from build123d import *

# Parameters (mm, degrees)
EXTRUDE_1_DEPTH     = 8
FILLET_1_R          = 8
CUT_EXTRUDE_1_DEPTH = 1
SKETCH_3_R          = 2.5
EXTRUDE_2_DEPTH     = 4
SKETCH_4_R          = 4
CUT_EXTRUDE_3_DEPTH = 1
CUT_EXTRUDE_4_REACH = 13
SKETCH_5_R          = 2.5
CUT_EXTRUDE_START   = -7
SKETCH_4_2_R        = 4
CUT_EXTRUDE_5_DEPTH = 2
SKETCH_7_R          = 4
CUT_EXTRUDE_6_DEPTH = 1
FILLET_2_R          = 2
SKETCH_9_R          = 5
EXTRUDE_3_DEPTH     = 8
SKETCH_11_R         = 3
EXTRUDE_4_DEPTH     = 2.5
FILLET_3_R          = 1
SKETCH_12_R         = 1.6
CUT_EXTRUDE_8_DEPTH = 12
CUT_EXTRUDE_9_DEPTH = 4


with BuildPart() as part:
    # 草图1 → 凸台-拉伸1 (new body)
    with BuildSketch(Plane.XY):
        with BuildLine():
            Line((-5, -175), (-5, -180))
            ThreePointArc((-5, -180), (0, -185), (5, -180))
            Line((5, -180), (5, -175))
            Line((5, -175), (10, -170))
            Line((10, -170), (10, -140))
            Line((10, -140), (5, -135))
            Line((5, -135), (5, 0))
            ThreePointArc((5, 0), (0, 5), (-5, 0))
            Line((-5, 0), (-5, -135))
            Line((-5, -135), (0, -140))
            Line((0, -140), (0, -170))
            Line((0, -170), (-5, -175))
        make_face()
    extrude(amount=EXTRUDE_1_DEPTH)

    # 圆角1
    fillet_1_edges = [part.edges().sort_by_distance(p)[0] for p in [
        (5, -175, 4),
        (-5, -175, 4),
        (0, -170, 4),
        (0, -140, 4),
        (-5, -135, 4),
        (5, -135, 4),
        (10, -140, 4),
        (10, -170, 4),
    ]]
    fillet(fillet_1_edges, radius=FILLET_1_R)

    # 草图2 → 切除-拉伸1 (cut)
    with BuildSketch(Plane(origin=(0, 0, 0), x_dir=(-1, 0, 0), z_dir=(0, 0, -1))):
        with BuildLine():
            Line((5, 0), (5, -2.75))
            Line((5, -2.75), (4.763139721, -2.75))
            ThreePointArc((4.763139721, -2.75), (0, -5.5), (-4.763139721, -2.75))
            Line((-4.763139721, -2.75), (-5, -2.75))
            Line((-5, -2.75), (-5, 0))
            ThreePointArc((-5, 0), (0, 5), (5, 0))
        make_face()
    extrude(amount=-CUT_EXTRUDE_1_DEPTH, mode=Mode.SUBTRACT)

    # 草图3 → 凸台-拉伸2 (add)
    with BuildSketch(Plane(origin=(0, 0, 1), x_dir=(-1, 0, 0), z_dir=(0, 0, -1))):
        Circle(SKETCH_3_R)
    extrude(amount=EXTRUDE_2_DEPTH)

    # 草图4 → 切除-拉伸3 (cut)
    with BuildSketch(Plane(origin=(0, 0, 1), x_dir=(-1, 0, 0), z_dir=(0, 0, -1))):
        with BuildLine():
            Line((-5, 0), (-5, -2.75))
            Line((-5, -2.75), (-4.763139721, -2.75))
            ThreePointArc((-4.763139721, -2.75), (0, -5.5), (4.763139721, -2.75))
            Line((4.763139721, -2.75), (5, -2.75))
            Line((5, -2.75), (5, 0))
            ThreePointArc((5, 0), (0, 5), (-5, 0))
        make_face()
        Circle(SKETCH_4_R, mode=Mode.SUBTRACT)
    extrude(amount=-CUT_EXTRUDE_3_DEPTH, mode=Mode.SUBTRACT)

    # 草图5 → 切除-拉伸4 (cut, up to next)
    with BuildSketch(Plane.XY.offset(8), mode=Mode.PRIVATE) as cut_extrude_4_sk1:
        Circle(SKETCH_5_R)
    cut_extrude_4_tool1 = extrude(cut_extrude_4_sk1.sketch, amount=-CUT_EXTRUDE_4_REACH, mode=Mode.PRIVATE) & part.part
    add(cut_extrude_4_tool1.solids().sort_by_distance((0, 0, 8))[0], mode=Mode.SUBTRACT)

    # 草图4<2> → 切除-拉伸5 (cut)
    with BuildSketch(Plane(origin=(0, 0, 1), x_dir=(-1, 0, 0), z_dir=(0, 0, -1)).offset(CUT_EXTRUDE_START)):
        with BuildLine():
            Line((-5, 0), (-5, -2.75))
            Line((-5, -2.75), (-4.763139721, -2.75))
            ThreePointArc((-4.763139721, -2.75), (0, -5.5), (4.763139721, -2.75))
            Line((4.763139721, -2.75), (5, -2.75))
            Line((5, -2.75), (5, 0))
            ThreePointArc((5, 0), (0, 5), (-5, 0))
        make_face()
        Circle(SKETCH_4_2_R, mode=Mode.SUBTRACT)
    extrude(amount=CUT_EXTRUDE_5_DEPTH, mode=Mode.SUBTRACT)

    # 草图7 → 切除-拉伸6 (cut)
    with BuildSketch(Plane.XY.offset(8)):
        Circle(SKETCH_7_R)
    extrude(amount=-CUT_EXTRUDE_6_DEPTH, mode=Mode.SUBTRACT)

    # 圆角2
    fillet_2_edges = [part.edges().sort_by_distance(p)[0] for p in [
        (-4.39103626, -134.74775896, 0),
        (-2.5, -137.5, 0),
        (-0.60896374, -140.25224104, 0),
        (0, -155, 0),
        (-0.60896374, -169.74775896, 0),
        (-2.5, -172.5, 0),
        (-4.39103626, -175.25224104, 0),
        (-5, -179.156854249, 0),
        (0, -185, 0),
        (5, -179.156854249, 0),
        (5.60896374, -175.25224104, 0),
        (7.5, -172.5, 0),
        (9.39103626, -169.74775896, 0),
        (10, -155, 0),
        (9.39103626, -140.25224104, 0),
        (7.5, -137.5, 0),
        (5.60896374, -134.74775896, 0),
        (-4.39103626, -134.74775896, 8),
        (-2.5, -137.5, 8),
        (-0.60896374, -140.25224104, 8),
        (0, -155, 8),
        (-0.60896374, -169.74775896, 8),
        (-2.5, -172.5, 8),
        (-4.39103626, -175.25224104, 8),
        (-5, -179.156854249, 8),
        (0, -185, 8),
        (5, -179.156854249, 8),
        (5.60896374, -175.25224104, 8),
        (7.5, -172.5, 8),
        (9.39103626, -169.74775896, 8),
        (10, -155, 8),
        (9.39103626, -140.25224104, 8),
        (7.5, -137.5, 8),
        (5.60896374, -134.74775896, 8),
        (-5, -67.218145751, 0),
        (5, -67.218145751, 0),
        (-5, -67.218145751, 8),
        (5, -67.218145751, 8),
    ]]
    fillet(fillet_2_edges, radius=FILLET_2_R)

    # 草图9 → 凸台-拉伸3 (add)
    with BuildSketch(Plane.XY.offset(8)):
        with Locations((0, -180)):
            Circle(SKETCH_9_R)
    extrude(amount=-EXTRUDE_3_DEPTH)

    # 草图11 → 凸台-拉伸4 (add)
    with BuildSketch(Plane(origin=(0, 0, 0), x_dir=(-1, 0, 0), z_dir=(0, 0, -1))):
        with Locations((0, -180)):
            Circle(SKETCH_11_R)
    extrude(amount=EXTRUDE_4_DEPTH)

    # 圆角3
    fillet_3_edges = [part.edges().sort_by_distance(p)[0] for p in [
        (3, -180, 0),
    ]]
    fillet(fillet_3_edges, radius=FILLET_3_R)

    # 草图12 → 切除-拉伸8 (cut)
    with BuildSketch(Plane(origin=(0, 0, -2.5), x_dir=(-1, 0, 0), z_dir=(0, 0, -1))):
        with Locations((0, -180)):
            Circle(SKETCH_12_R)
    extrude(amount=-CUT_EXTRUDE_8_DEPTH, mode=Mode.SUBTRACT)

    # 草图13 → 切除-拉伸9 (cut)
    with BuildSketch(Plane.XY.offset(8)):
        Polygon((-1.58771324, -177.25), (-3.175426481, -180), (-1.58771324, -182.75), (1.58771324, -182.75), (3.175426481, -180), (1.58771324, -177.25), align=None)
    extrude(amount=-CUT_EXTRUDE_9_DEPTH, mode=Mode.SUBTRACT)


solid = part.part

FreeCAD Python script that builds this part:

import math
import FreeCAD as App
import Part
import Sketcher
from FreeCAD import Vector
Q = App.Units.Quantity


def edges_at(feature, points):
    """Names of the edges that pass closest to the given points."""
    edges = feature.Shape.Edges
    near = lambda p: min(range(len(edges)), key=lambda i: edges[i].distToShape(Part.Vertex(*p))[0])
    return sorted({f"Edge{near(p) + 1}" for p in points})


def add_polygon(sketch, points):
    """Adds a closed chain of lines whose ends are joined by coincident constraints."""
    first, n = sketch.GeometryCount, len(points)
    for a, b in zip(points, points[1:] + points[:1]):
        sketch.addGeometry(Part.LineSegment(App.Vector(*a, 0), App.Vector(*b, 0)), False)
    for i in range(n):
        sketch.addConstraint(Sketcher.Constraint("Coincident", first + i, 2, first + (i + 1) % n, 1))

doc = App.newDocument("Part")
body = doc.addObject("PartDesign::Body", "Body")

# Sketch on XY plane
sketch1 = body.newObject("Sketcher::SketchObject", "Sketch")
sketch1.AttachmentSupport = (doc.getObject("XY_Plane"), [""])
sketch1.MapMode = "FlatFace"
sketch1.addGeometry([
    Part.LineSegment(Vector(-5, -175, 0), Vector(-5, -180, 0)),  # 0
    Part.ArcOfCircle(Part.Circle(Vector(0, -180, 0), Vector(0, 0, 1), 5), math.radians(180), math.radians(360)),  # 1
    Part.LineSegment(Vector(5, -180, 0), Vector(5, -175, 0)),  # 2
    Part.LineSegment(Vector(5, -175, 0), Vector(10, -170, 0)),  # 3
    Part.LineSegment(Vector(10, -170, 0), Vector(10, -140, 0)),  # 4
    Part.LineSegment(Vector(10, -140, 0), Vector(5, -135, 0)),  # 5
    Part.LineSegment(Vector(5, -135, 0), Vector(5, 0, 0)),  # 6
    Part.ArcOfCircle(Part.Circle(Vector(0, 0, 0), Vector(0, 0, 1), 5), math.radians(0), math.radians(180)),  # 7
    Part.LineSegment(Vector(-5, 0, 0), Vector(-5, -135, 0)),  # 8
    Part.LineSegment(Vector(-5, -135, 0), Vector(0, -140, 0)),  # 9
    Part.LineSegment(Vector(0, -140, 0), Vector(0, -170, 0)),  # 10
    Part.LineSegment(Vector(0, -170, 0), Vector(-5, -175, 0)),  # 11
], False)
sketch1.addConstraint([
    Sketcher.Constraint("Tangent", 0, 2, 1, 1),
    Sketcher.Constraint("Tangent", 1, 2, 2, 1),
    Sketcher.Constraint("Coincident", 2, 2, 3, 1),
    Sketcher.Constraint("Coincident", 3, 2, 4, 1),
    Sketcher.Constraint("Coincident", 4, 2, 5, 1),
    Sketcher.Constraint("Coincident", 5, 2, 6, 1),
    Sketcher.Constraint("Tangent", 6, 2, 7, 1),
    Sketcher.Constraint("Tangent", 7, 2, 8, 1),
    Sketcher.Constraint("Coincident", 8, 2, 9, 1),
    Sketcher.Constraint("Coincident", 9, 2, 10, 1),
    Sketcher.Constraint("Coincident", 10, 2, 11, 1),
    Sketcher.Constraint("Coincident", 11, 2, 0, 1),
    Sketcher.Constraint("Vertical", 0),
    Sketcher.Constraint("Vertical", 2),
    Sketcher.Constraint("Vertical", 4),
    Sketcher.Constraint("Vertical", 6),
    Sketcher.Constraint("Vertical", 8),
    Sketcher.Constraint("Vertical", 10),
    Sketcher.Constraint("Coincident", 7, 3, -1, 1),
    Sketcher.Constraint("Equal", 1, 7),
    Sketcher.Constraint("Symmetric", 2, 2, 11, 2, -2),
    Sketcher.Constraint("PointOnObject", 9, 2, -2),
    Sketcher.Constraint("Perpendicular", 3, 5),
    Sketcher.Constraint("Parallel", 5, 9),
    Sketcher.Constraint("Perpendicular", 9, 11),
    Sketcher.Constraint("Horizontal", 5, 2, 8, 2),
    Sketcher.Constraint("Horizontal", 4, 2, 9, 2),
    Sketcher.Constraint("Equal", 3, 5),
    Sketcher.Constraint("Radius", 1, 5.0),
    Sketcher.Constraint("DistanceY", 0, 2, 0, 1, 5.0),
    Sketcher.Constraint("DistanceY", 4, 1, 4, 2, 30.0),
    Sketcher.Constraint("DistanceY", 6, 1, 6, 2, 135.0),
])
pad1 = body.newObject("PartDesign::Pad", "Pad")
pad1.Profile = sketch1
pad1.Length = 8
doc.recompute()

fillet = body.newObject("PartDesign::Fillet", "Fillet")
fillet.Base = (pad1, edges_at(pad1, [
    (5, -175, 4),
    (-5, -175, 4),
    (0, -170, 4),
    (0, -140, 4),
    (-5, -135, 4),
    (5, -135, 4),
    (10, -140, 4),
    (10, -170, 4),
]))
fillet.Radius = 8

# Sketch on XY plane
sketch2 = body.newObject("Sketcher::SketchObject", "Sketch001")
sketch2.AttachmentSupport = (doc.getObject("XY_Plane"), [""])
sketch2.MapMode = "FlatFace"
sketch2.addGeometry([
    Part.LineSegment(Vector(-5, -2.75, 0), Vector(-5, 0, 0)),  # 0
    Part.ArcOfCircle(Part.Circle(Vector(0, 0, 0), Vector(0, 0, 1), 5), math.radians(0), math.radians(180)),  # 1
    Part.LineSegment(Vector(5, 0, 0), Vector(5, -2.75, 0)),  # 2
    Part.LineSegment(Vector(5, -2.75, 0), Vector(4.76314, -2.75, 0)),  # 3
    Part.ArcOfCircle(Part.Circle(Vector(0, 0, 0), Vector(0, 0, 1), 5.5), math.radians(-150), math.radians(-30)),  # 4
    Part.LineSegment(Vector(-4.76314, -2.75, 0), Vector(-5, -2.75, 0)),  # 5
], False)
sketch2.addConstraint([
    Sketcher.Constraint("Tangent", 0, 2, 1, 2),
    Sketcher.Constraint("Tangent", 1, 1, 2, 1),
    Sketcher.Constraint("Coincident", 2, 2, 3, 1),
    Sketcher.Constraint("Coincident", 3, 2, 4, 2),
    Sketcher.Constraint("Coincident", 4, 1, 5, 1),
    Sketcher.Constraint("Coincident", 5, 2, 0, 1),
    Sketcher.Constraint("Vertical", 0),
    Sketcher.Constraint("Vertical", 2),
    Sketcher.Constraint("Horizontal", 3),
    Sketcher.Constraint("Horizontal", 5),
    Sketcher.Constraint("Coincident", 1, 3, -1, 1),
    Sketcher.Constraint("Coincident", 4, 3, -1, 1),
    Sketcher.Constraint("Horizontal", 3, 2, 4, 1),
    Sketcher.Constraint("Radius", 1, 5.0),
    Sketcher.Constraint("Radius", 4, 5.5),
    Sketcher.Constraint("DistanceY", 0, 1, 0, 2, 2.75),
])
pocket1 = body.newObject("PartDesign::Pocket", "Pocket")
pocket1.Profile = sketch2
pocket1.Length = 1
pocket1.Reversed = True

# Sketch on XY plane
sketch3 = body.newObject("Sketcher::SketchObject", "Sketch002")
sketch3.AttachmentSupport = (doc.getObject("XY_Plane"), [""])
sketch3.MapMode = "FlatFace"
sketch3.AttachmentOffset = App.Placement(Vector(0, 0, 1), App.Rotation())
sketch3.addGeometry(Part.Circle(Vector(0, 0, 0), Vector(0, 0, 1), 2.5), False)
sketch3.addConstraint([
    Sketcher.Constraint("Coincident", 0, 3, -1, 1),
    Sketcher.Constraint("Diameter", 0, 5.0),
])
pad2 = body.newObject("PartDesign::Pad", "Pad001")
pad2.Profile = sketch3
pad2.Length = 4
pad2.Reversed = True

# Sketch on XY plane
sketch4 = body.newObject("Sketcher::SketchObject", "Sketch003")
sketch4.AttachmentSupport = (doc.getObject("XY_Plane"), [""])
sketch4.MapMode = "FlatFace"
sketch4.AttachmentOffset = App.Placement(Vector(0, 0, 1), App.Rotation())
sketch4.addGeometry([
    Part.LineSegment(Vector(5, 0, 0), Vector(5, -2.75, 0)),  # 0
    Part.LineSegment(Vector(5, -2.75, 0), Vector(4.76314, -2.75, 0)),  # 1
    Part.ArcOfCircle(Part.Circle(Vector(0, 0, 0), Vector(0, 0, 1), 5.5), math.radians(-150), math.radians(-30)),  # 2
    Part.LineSegment(Vector(-4.76314, -2.75, 0), Vector(-5, -2.75, 0)),  # 3
    Part.LineSegment(Vector(-5, -2.75, 0), Vector(-5, 0, 0)),  # 4
    Part.ArcOfCircle(Part.Circle(Vector(0, 0, 0), Vector(0, 0, 1), 5), math.radians(0), math.radians(180)),  # 5
    Part.Circle(Vector(0, 0, 0), Vector(0, 0, 1), 4),  # 6
], False)
sketch4.addConstraint([
    Sketcher.Constraint("Coincident", 0, 2, 1, 1),
    Sketcher.Constraint("Coincident", 1, 2, 2, 2),
    Sketcher.Constraint("Coincident", 2, 1, 3, 1),
    Sketcher.Constraint("Coincident", 3, 2, 4, 1),
    Sketcher.Constraint("Tangent", 4, 2, 5, 2),
    Sketcher.Constraint("Tangent", 5, 1, 0, 1),
    Sketcher.Constraint("Vertical", 0),
    Sketcher.Constraint("Horizontal", 1),
    Sketcher.Constraint("Horizontal", 3),
    Sketcher.Constraint("Vertical", 4),
    Sketcher.Constraint("Coincident", 2, 3, -1, 1),
    Sketcher.Constraint("Coincident", 5, 3, -1, 1),
    Sketcher.Constraint("Coincident", 6, 3, -1, 1),
    Sketcher.Constraint("Horizontal", 1, 2, 2, 1),
    Sketcher.Constraint("Diameter", 6, 8.0),
    Sketcher.Constraint("Radius", 5, 5.0),
    Sketcher.Constraint("Radius", 2, 5.5),
    Sketcher.Constraint("DistanceY", 0, 2, 0, 1, 2.75),
])
pocket2 = body.newObject("PartDesign::Pocket", "Pocket001")
pocket2.Profile = sketch4
pocket2.Length = 1
pocket2.Reversed = True

# Sketch on XY plane
sketch5 = body.newObject("Sketcher::SketchObject", "Sketch004")
sketch5.AttachmentSupport = (doc.getObject("XY_Plane"), [""])
sketch5.MapMode = "FlatFace"
sketch5.AttachmentOffset = App.Placement(Vector(0, 0, 8), App.Rotation())
sketch5.addGeometry(Part.Circle(Vector(0, 0, 0), Vector(0, 0, 1), 2.5), False)
sketch5.addConstraint([
    Sketcher.Constraint("Coincident", 0, 3, -1, 1),
    Sketcher.Constraint("Diameter", 0, 5.0),
])
pocket3 = body.newObject("PartDesign::Pocket", "Pocket002")
pocket3.Profile = sketch5
pocket3.Type = "UpToFirst"

# Sketch on XY plane
sketch6 = body.newObject("Sketcher::SketchObject", "Sketch005")
sketch6.AttachmentSupport = (doc.getObject("XY_Plane"), [""])
sketch6.MapMode = "FlatFace"
sketch6.AttachmentOffset = App.Placement(Vector(0, 0, 8), App.Rotation())
sketch6.addGeometry([
    Part.LineSegment(Vector(5, 0, 0), Vector(5, -2.75, 0)),  # 0
    Part.LineSegment(Vector(5, -2.75, 0), Vector(4.76314, -2.75, 0)),  # 1
    Part.ArcOfCircle(Part.Circle(Vector(0, 0, 0), Vector(0, 0, 1), 5.5), math.radians(-150), math.radians(-30)),  # 2
    Part.LineSegment(Vector(-4.76314, -2.75, 0), Vector(-5, -2.75, 0)),  # 3
    Part.LineSegment(Vector(-5, -2.75, 0), Vector(-5, 0, 0)),  # 4
    Part.ArcOfCircle(Part.Circle(Vector(0, 0, 0), Vector(0, 0, 1), 5), math.radians(0), math.radians(180)),  # 5
    Part.Circle(Vector(0, 0, 0), Vector(0, 0, 1), 4),  # 6
], False)
sketch6.addConstraint([
    Sketcher.Constraint("Coincident", 0, 2, 1, 1),
    Sketcher.Constraint("Coincident", 1, 2, 2, 2),
    Sketcher.Constraint("Coincident", 2, 1, 3, 1),
    Sketcher.Constraint("Coincident", 3, 2, 4, 1),
    Sketcher.Constraint("Tangent", 4, 2, 5, 2),
    Sketcher.Constraint("Tangent", 5, 1, 0, 1),
    Sketcher.Constraint("Vertical", 0),
    Sketcher.Constraint("Horizontal", 1),
    Sketcher.Constraint("Horizontal", 3),
    Sketcher.Constraint("Vertical", 4),
    Sketcher.Constraint("Coincident", 2, 3, -1, 1),
    Sketcher.Constraint("Coincident", 5, 3, -1, 1),
    Sketcher.Constraint("Coincident", 6, 3, -1, 1),
    Sketcher.Constraint("Horizontal", 1, 2, 2, 1),
    Sketcher.Constraint("Diameter", 6, 8.0),
    Sketcher.Constraint("Radius", 5, 5.0),
    Sketcher.Constraint("Radius", 2, 5.5),
    Sketcher.Constraint("DistanceY", 0, 2, 0, 1, 2.75),
])
pocket4 = body.newObject("PartDesign::Pocket", "Pocket003")
pocket4.Profile = sketch6
pocket4.Length = 2

# Sketch on XY plane
sketch7 = body.newObject("Sketcher::SketchObject", "Sketch006")
sketch7.AttachmentSupport = (doc.getObject("XY_Plane"), [""])
sketch7.MapMode = "FlatFace"
sketch7.AttachmentOffset = App.Placement(Vector(0, 0, 8), App.Rotation())
sketch7.addGeometry(Part.Circle(Vector(0, 0, 0), Vector(0, 0, 1), 4), False)
sketch7.addConstraint([
    Sketcher.Constraint("Coincident", 0, 3, -1, 1),
    Sketcher.Constraint("Diameter", 0, 8.0),
])
pocket5 = body.newObject("PartDesign::Pocket", "Pocket004")
pocket5.Profile = sketch7
pocket5.Length = 1
doc.recompute()

fillet2 = body.newObject("PartDesign::Fillet", "Fillet001")
fillet2.Base = (pocket5, edges_at(pocket5, [
    (-4.391, -134.748, 0),
    (-2.5, -137.5, 0),
    (-0.609, -140.252, 0),
    (0, -155, 0),
    (-0.609, -169.748, 0),
    (-2.5, -172.5, 0),
    (-4.391, -175.252, 0),
    (-5, -179.157, 0),
    (0, -185, 0),
    (5, -179.157, 0),
    (5.609, -175.252, 0),
    (7.5, -172.5, 0),
    (9.391, -169.748, 0),
    (10, -155, 0),
    (9.391, -140.252, 0),
    (7.5, -137.5, 0),
    (5.609, -134.748, 0),
    (-4.391, -134.748, 8),
    (-2.5, -137.5, 8),
    (-0.609, -140.252, 8),
    (0, -155, 8),
    (-0.609, -169.748, 8),
    (-2.5, -172.5, 8),
    (-4.391, -175.252, 8),
    (-5, -179.157, 8),
    (0, -185, 8),
    (5, -179.157, 8),
    (5.609, -175.252, 8),
    (7.5, -172.5, 8),
    (9.391, -169.748, 8),
    (10, -155, 8),
    (9.391, -140.252, 8),
    (7.5, -137.5, 8),
    (5.609, -134.748, 8),
    (-5, -67.218, 0),
    (5, -67.218, 0),
    (-5, -67.218, 8),
    (5, -67.218, 8),
]))
fillet2.Radius = 2

# Sketch on XY plane
sketch8 = body.newObject("Sketcher::SketchObject", "Sketch007")
sketch8.AttachmentSupport = (doc.getObject("XY_Plane"), [""])
sketch8.MapMode = "FlatFace"
sketch8.AttachmentOffset = App.Placement(Vector(0, 0, 8), App.Rotation())
sketch8.addGeometry(Part.Circle(Vector(0, -180, 0), Vector(0, 0, 1), 5), False)
sketch8.addConstraint([
    Sketcher.Constraint("PointOnObject", 0, 3, -2),
    Sketcher.Constraint("Diameter", 0, 10.0),
    Sketcher.Constraint("DistanceY", 0, 3, -1, 1, 180.0),
])
pad3 = body.newObject("PartDesign::Pad", "Pad002")
pad3.Profile = sketch8
pad3.Length = 8
pad3.Reversed = True

# Sketch on XY plane
sketch9 = body.newObject("Sketcher::SketchObject", "Sketch008")
sketch9.AttachmentSupport = (doc.getObject("XY_Plane"), [""])
sketch9.MapMode = "FlatFace"
sketch9.addGeometry(Part.Circle(Vector(0, -180, 0), Vector(0, 0, 1), 3), False)
sketch9.addConstraint([
    Sketcher.Constraint("PointOnObject", 0, 3, -2),
    Sketcher.Constraint("Diameter", 0, 6.0),
    Sketcher.Constraint("DistanceY", 0, 3, -1, 1, 180.0),
])
pad4 = body.newObject("PartDesign::Pad", "Pad003")
pad4.Profile = sketch9
pad4.Length = 2.5
pad4.Reversed = True
doc.recompute()

fillet3 = body.newObject("PartDesign::Fillet", "Fillet002")
fillet3.Base = (pad4, edges_at(pad4, [(3, -180, 0)]))
fillet3.Radius = 1

# Sketch on XY plane
sketch10 = body.newObject("Sketcher::SketchObject", "Sketch009")
sketch10.AttachmentSupport = (doc.getObject("XY_Plane"), [""])
sketch10.MapMode = "FlatFace"
sketch10.AttachmentOffset = App.Placement(Vector(0, 0, -2.5), App.Rotation())
sketch10.addGeometry(Part.Circle(Vector(0, -180, 0), Vector(0, 0, 1), 1.6), False)
sketch10.addConstraint([
    Sketcher.Constraint("PointOnObject", 0, 3, -2),
    Sketcher.Constraint("Diameter", 0, 3.2),
    Sketcher.Constraint("DistanceY", 0, 3, -1, 1, 180.0),
])
pocket6 = body.newObject("PartDesign::Pocket", "Pocket005")
pocket6.Profile = sketch10
pocket6.Length = 12
pocket6.Reversed = True

# Sketch on XY plane
sketch11 = body.newObject("Sketcher::SketchObject", "Sketch010")
sketch11.AttachmentSupport = (doc.getObject("XY_Plane"), [""])
sketch11.MapMode = "FlatFace"
sketch11.AttachmentOffset = App.Placement(Vector(0, 0, 8), App.Rotation())
add_polygon(sketch11, [(-1.587713, -177.25), (-3.175426, -180), (-1.587713, -182.75), (1.587713, -182.75), (3.175426, -180), (1.587713, -177.25)])  # lines 0-5
sketch11.addConstraint([
    Sketcher.Constraint("Horizontal", 2),
    Sketcher.Constraint("Horizontal", 5),
    Sketcher.Constraint("Symmetric", 0, 2, 3, 2, -2),
    Sketcher.Constraint("Parallel", 0, 3),
    Sketcher.Constraint("Parallel", 1, 4),
    Sketcher.Constraint("Vertical", 2, 2, 4, 2),
    Sketcher.Constraint("Vertical", 1, 2, 5, 2),
    Sketcher.Constraint("Angle", 0, Q("-120 deg")),
    Sketcher.Constraint("DistanceY", 0, 2, -1, 1, 180.0),
    Sketcher.Constraint("DistanceY", 2, 2, 4, 2, 5.5),
    Sketcher.Constraint("DistanceX", 2, 1, 2, 2, 3.175426),
])
pocket7 = body.newObject("PartDesign::Pocket", "Pocket006")
pocket7.Profile = sketch11
pocket7.Length = 4

doc.recompute()
